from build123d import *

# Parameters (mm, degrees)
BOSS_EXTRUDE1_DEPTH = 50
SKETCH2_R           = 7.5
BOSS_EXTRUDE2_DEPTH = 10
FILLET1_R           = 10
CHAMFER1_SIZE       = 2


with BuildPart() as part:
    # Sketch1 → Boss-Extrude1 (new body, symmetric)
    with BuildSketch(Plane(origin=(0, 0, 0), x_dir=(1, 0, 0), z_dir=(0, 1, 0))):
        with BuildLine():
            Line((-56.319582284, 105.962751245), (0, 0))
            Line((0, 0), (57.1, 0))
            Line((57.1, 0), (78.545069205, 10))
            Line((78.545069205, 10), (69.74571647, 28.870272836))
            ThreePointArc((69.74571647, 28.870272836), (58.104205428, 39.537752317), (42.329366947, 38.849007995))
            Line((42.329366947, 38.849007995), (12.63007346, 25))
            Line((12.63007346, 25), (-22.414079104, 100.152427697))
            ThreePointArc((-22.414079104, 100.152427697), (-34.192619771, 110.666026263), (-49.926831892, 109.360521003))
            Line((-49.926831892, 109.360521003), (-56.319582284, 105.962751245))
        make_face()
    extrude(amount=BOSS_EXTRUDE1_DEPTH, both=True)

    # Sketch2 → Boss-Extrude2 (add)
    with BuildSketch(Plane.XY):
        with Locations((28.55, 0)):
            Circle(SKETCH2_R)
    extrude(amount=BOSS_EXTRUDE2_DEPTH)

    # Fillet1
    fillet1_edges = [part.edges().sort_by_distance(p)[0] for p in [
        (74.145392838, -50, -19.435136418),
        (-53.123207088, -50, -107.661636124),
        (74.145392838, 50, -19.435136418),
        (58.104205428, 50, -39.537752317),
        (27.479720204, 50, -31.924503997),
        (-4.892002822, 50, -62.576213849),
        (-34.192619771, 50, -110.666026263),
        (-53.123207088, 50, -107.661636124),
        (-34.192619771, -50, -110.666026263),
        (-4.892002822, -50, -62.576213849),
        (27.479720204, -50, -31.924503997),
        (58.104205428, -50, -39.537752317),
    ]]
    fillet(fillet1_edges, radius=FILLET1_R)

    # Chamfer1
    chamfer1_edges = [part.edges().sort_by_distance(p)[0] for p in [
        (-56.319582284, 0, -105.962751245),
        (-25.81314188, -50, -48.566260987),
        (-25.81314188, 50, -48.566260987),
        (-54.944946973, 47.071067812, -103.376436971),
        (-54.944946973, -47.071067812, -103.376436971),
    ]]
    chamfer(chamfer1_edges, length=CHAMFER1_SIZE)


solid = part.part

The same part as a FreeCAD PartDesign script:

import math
import FreeCAD as App
import Part
import Sketcher

V = App.Vector
Q = App.Units.Quantity


def edges_at(feature, points):
    """Names of the edges that pass closest to the given points."""
    edges = feature.Shape.Edges
    near = lambda p: min(range(len(edges)), key=lambda i: edges[i].distToShape(Part.Vertex(*p))[0])
    return sorted({f"Edge{near(p) + 1}" for p in points})

doc = App.newDocument("Part")
body = doc.addObject("PartDesign::Body", "Body")

# Sketch on XZ plane
sketch1 = body.newObject("Sketcher::SketchObject", "Sketch")
sketch1.AttachmentSupport = (doc.getObject("XZ_Plane"), [""])
sketch1.MapMode = "FlatFace"
sketch1.addGeometry(Part.LineSegment(V(-56, -106, 0), V(0, 0, 0)), False)
sketch1.addGeometry(Part.LineSegment(V(0, 0, 0), V(57, 0, 0)), False)
sketch1.addGeometry(Part.LineSegment(V(57, 0, 0), V(79, -10, 0)), False)
sketch1.addGeometry(Part.LineSegment(V(79, -10, 0), V(70, -29, 0)), False)
sketch1.addGeometry(Part.ArcOfCircle(Part.Circle(V(51, -20, 0), V(0, 0, 1), 21), math.radians(-115), math.radians(-25)), False)
sketch1.addGeometry(Part.LineSegment(V(42, -39, 0), V(13, -25, 0)), False)
sketch1.addGeometry(Part.LineSegment(V(13, -25, 0), V(-22, -100, 0)), False)
sketch1.addGeometry(Part.ArcOfCircle(Part.Circle(V(-41, -92, 0), V(0, 0, 1), 20), math.radians(-118), math.radians(-25)), False)
sketch1.addGeometry(Part.LineSegment(V(-50, -109, 0), V(-56, -106, 0)), False)
sketch1.addConstraint(Sketcher.Constraint("Coincident", 0, 2, 1, 1))
sketch1.addConstraint(Sketcher.Constraint("Coincident", 1, 2, 2, 1))
sketch1.addConstraint(Sketcher.Constraint("Coincident", 2, 2, 3, 1))
sketch1.addConstraint(Sketcher.Constraint("Tangent", 3, 2, 4, 2))
sketch1.addConstraint(Sketcher.Constraint("Tangent", 4, 1, 5, 1))
sketch1.addConstraint(Sketcher.Constraint("Coincident", 5, 2, 6, 1))
sketch1.addConstraint(Sketcher.Constraint("Tangent", 6, 2, 7, 2))
sketch1.addConstraint(Sketcher.Constraint("Tangent", 7, 1, 8, 1))
sketch1.addConstraint(Sketcher.Constraint("Coincident", 8, 2, 0, 1))
sketch1.addConstraint(Sketcher.Constraint("Horizontal", 1))
sketch1.addConstraint(Sketcher.Constraint("Coincident", 0, 2, -1, 1))
sketch1.addConstraint(Sketcher.Constraint("Perpendicular", 2, 3))
sketch1.addConstraint(Sketcher.Constraint("Perpendicular", 3, 5))
sketch1.addConstraint(Sketcher.Constraint("Perpendicular", 5, 6))
sketch1.addConstraint(Sketcher.Constraint("Perpendicular", 0, 8))
sketch1.addConstraint(Sketcher.Constraint("Radius", 7, Q("20 mm")))
sketch1.addConstraint(Sketcher.Constraint("Angle", 2, Q("-25 deg")))
sketch1.addConstraint(Sketcher.Constraint("Distance", 0, Q("120 mm")))
sketch1.addConstraint(Sketcher.Constraint("DistanceX", 1, 1, 1, 2, Q("57.1 mm")))
sketch1.addConstraint(Sketcher.Constraint("DistanceY", 2, 2, -1, 1, Q("10 mm")))
sketch1.addConstraint(Sketcher.Constraint("DistanceY", 5, 2, -1, 1, Q("25 mm")))
sketch1.addConstraint(Sketcher.Constraint("Radius", 4, Q("20.630455 mm")))
sketch1.addConstraint(Sketcher.Constraint("DistanceX", 5, 2, 4, 3, Q("38.418101 mm")))
sketch1.addConstraint(Sketcher.Constraint("DistanceX", 7, 1, 4, 1, Q("92.256199 mm")))
pad1 = body.newObject("PartDesign::Pad", "Pad")
pad1.Profile = sketch1
pad1.Length = 100
pad1.Midplane = True

# Sketch on XY plane
sketch2 = body.newObject("Sketcher::SketchObject", "Sketch001")
sketch2.AttachmentSupport = (doc.getObject("XY_Plane"), [""])
sketch2.MapMode = "FlatFace"
sketch2.addGeometry(Part.Circle(V(29, 0, 0), V(0, 0, 1), 8), False)
sketch2.addConstraint(Sketcher.Constraint("PointOnObject", 0, 3, -1))
sketch2.addConstraint(Sketcher.Constraint("Diameter", 0, Q("15 mm")))
sketch2.addConstraint(Sketcher.Constraint("DistanceX", -1, 1, 0, 3, Q("28.55 mm")))
pad2 = body.newObject("PartDesign::Pad", "Pad001")
pad2.Profile = sketch2
pad2.Length = 10
doc.recompute()

fillet = body.newObject("PartDesign::Fillet", "Fillet")
fillet.Base = (pad2, edges_at(pad2, [
    (74.145, -50, -19.435),
    (-53.123, -50, -107.662),
    (74.145, 50, -19.435),
    (58.104, 50, -39.538),
    (27.48, 50, -31.925),
    (-4.892, 50, -62.576),
    (-34.193, 50, -110.666),
    (-53.123, 50, -107.662),
    (-34.193, -50, -110.666),
    (-4.892, -50, -62.576),
    (27.48, -50, -31.925),
    (58.104, -50, -39.538),
]))
fillet.Radius = 10
doc.recompute()

chamfer = body.newObject("PartDesign::Chamfer", "Chamfer")
chamfer.Base = (fillet, edges_at(fillet, [
    (-56.32, 0, -105.963),
    (-25.813, -50, -48.566),
    (-25.813, 50, -48.566),
    (-54.945, 47.071, -103.376),
    (-54.945, -47.071, -103.376),
]))
chamfer.Size = 2

doc.recompute()
